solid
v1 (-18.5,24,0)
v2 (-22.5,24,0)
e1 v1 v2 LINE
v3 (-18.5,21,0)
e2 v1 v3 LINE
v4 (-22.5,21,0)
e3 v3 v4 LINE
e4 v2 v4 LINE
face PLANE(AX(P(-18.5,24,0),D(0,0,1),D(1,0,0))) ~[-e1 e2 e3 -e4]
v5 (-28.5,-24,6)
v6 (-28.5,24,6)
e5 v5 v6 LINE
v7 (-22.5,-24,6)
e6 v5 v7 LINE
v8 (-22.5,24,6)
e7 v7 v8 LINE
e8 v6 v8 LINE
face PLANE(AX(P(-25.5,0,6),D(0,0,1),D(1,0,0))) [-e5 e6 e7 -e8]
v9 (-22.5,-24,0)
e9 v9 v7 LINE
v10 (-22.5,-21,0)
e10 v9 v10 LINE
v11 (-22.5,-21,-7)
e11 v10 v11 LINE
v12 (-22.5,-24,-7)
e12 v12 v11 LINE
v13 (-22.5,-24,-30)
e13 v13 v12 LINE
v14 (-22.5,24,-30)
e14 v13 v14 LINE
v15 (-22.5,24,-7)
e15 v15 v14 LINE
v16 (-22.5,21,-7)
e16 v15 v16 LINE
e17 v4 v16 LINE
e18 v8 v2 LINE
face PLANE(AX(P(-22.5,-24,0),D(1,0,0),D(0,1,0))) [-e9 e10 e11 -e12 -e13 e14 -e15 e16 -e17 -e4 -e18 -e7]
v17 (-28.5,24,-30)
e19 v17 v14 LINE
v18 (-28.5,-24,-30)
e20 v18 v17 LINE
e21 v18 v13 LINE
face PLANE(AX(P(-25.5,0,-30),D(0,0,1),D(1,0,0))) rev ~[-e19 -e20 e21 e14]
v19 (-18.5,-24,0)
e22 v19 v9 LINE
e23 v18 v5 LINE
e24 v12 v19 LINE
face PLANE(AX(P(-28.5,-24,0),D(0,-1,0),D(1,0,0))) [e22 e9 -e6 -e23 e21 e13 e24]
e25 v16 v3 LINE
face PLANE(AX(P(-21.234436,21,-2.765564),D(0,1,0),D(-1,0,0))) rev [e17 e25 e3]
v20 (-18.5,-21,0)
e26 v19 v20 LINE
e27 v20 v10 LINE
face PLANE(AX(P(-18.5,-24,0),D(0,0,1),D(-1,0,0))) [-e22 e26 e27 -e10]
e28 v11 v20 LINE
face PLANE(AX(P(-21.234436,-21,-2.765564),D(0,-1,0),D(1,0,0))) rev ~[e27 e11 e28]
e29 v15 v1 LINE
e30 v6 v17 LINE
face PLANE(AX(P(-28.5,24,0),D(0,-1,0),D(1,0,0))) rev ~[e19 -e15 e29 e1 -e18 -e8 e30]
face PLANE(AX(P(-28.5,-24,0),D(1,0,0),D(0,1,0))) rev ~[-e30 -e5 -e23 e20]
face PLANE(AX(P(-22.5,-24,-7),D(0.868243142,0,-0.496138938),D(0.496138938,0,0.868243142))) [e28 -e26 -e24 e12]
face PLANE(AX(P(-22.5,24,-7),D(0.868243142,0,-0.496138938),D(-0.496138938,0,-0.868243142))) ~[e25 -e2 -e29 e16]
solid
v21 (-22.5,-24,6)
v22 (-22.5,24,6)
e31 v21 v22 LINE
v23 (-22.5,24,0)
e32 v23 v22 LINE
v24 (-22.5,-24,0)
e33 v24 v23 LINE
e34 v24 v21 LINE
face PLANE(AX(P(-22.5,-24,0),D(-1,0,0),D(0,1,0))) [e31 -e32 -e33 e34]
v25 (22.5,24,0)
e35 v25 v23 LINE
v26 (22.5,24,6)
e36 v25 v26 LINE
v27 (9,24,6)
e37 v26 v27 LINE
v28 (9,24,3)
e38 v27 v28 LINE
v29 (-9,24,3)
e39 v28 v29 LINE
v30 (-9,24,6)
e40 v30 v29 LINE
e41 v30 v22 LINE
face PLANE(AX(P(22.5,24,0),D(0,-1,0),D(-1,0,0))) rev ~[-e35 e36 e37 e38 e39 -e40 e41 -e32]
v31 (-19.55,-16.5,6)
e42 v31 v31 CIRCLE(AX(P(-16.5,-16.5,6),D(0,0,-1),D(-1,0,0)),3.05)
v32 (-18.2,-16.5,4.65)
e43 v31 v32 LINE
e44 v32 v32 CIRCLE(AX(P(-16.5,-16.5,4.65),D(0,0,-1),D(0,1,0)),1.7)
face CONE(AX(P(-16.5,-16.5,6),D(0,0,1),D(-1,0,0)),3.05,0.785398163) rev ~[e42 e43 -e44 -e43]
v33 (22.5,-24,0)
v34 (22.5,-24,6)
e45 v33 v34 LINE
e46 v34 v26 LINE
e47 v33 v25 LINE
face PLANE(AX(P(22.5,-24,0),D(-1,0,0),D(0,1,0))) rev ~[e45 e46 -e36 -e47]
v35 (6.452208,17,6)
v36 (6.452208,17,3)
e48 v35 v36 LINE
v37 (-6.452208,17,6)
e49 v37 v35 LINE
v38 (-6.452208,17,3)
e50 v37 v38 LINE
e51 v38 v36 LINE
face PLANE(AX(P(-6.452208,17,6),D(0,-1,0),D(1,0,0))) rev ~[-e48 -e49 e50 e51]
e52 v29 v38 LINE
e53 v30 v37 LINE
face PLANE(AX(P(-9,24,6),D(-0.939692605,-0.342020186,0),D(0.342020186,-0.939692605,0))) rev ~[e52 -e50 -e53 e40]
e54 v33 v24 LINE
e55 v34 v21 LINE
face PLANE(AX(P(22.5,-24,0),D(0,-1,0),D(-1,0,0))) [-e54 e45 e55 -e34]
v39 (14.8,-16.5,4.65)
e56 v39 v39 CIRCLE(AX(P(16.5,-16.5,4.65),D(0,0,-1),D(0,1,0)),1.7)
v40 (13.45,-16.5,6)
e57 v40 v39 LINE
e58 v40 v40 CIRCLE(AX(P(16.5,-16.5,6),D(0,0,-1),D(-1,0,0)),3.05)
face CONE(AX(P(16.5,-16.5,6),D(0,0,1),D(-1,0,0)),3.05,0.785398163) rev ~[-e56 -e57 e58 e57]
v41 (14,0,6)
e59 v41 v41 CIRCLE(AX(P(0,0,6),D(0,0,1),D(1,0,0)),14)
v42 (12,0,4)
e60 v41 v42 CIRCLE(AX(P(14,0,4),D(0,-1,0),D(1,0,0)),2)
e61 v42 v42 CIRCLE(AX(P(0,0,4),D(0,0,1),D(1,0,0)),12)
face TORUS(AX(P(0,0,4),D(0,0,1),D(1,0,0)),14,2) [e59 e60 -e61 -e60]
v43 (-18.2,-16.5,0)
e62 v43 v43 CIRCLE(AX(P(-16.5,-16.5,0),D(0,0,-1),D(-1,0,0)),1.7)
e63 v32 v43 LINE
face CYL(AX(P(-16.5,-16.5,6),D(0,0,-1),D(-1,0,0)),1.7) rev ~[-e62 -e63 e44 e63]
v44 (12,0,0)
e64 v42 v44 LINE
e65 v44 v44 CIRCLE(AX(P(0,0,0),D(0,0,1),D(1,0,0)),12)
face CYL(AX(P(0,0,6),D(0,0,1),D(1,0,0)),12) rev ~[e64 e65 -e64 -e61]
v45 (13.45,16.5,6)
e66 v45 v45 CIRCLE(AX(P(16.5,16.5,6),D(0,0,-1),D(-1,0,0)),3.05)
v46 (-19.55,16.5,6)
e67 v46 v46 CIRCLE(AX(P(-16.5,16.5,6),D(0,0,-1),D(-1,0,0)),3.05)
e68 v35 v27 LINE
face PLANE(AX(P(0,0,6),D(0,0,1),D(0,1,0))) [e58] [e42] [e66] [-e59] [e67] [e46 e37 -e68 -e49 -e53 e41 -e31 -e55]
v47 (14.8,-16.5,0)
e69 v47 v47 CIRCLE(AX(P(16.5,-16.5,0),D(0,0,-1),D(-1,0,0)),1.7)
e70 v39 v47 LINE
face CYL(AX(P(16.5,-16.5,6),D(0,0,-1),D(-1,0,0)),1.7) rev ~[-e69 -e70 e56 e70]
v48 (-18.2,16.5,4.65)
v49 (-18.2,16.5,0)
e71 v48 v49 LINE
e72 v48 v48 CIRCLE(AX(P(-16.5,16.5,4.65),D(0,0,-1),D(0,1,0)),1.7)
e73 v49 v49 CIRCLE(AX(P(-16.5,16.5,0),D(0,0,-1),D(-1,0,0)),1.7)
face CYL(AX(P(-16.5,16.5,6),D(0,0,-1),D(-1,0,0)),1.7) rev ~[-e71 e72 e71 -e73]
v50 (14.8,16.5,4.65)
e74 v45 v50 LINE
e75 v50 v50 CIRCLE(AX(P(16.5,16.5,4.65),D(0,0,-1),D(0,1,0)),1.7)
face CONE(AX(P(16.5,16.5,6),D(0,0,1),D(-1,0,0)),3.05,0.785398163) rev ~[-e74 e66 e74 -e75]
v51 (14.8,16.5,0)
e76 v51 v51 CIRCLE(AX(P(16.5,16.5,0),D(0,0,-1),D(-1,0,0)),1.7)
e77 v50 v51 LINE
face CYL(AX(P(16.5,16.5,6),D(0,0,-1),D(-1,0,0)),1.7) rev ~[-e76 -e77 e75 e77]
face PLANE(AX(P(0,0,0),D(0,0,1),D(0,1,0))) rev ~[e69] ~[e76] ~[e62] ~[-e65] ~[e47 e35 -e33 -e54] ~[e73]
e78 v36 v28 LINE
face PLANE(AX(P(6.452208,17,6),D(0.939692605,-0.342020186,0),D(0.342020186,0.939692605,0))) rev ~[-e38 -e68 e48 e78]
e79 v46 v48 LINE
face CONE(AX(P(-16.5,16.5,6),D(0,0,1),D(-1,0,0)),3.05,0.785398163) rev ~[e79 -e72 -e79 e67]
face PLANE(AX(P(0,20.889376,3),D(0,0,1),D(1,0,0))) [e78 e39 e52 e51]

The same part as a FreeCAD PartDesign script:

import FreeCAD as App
import Part
import Sketcher

V = App.Vector
Q = App.Units.Quantity


def edges_at(feature, points):
    """Names of the edges that pass closest to the given points."""
    edges = feature.Shape.Edges
    near = lambda p: min(range(len(edges)), key=lambda i: edges[i].distToShape(Part.Vertex(*p))[0])
    return sorted({f"Edge{near(p) + 1}" for p in points})


def add_polygon(sketch, points):
    """Adds a closed chain of lines whose ends are joined by coincident constraints."""
    first, n = sketch.GeometryCount, len(points)
    for a, b in zip(points, points[1:] + points[:1]):
        sketch.addGeometry(Part.LineSegment(App.Vector(*a, 0), App.Vector(*b, 0)), False)
    for i in range(n):
        sketch.addConstraint(Sketcher.Constraint("Coincident", first + i, 2, first + (i + 1) % n, 1))

doc = App.newDocument("Part")
params = doc.addObject("Spreadsheet::Sheet", "Params")
for row, (alias, value) in enumerate([
    ("sketch1_width", "45 mm"),
    ("sketch1_height", "48 mm"),
    ("pad1_length", "6 mm"),
    ("sketch2_diameter", "3.4 mm"),
    ("hole_diameter", "3.4 mm"),
    ("hole_csink_diameter", "6.1 mm"),
    ("sketch3_diameter", "24 mm"),
    ("fillet_radius", "2 mm"),
    ("sketch4_width", "18 mm"),
    ("pocket2_length", "3 mm"),
    ("sketch5_width", "6 mm"),
    ("sketch5_height", "48 mm"),
    ("pad2_length", "6 mm"),
    ("pad2_length2", "30 mm"),
    ("sketch6_width", "4 mm"),
    ("sketch6_height", "7 mm"),
    ("pad3_length", "3 mm"),
], start=1):
    params.set(f"A{row}", alias)
    params.set(f"B{row}", "=" + value)
    params.setAlias(f"B{row}", alias)

body = doc.addObject("PartDesign::Body", "Body")

sketch1 = body.newObject("Sketcher::SketchObject", "Sketch")
sketch1.AttachmentSupport = (doc.getObject("XY_Plane"), [""])
sketch1.MapMode = "FlatFace"
add_polygon(sketch1, [(-22, -24), (22, -24), (22, 24), (-22, 24)])
sketch1.addConstraint([
    Sketcher.Constraint("Horizontal", 0),
    Sketcher.Constraint("Vertical", 1),
    Sketcher.Constraint("Horizontal", 2),
    Sketcher.Constraint("Vertical", 3),
    Sketcher.Constraint("Symmetric", 0, 2, 2, 2, -1, 1),
    Sketcher.Constraint("DistanceX", 0, 1, 0, 2, 45.0),
    Sketcher.Constraint("DistanceY", 1, 1, 1, 2, 48.0),
])
sketch1.setExpression("Constraints[9]", "Params.sketch1_width")
sketch1.setExpression("Constraints[10]", "Params.sketch1_height")
pad1 = body.newObject("PartDesign::Pad", "Pad")
pad1.Profile = sketch1
pad1.setExpression("Length", "Params.pad1_length")

sketch2 = body.newObject("Sketcher::SketchObject", "Sketch001")
sketch2.AttachmentSupport = (doc.getObject("XY_Plane"), [""])
sketch2.MapMode = "FlatFace"
sketch2.AttachmentOffset = App.Placement(V(0, 0, 6), App.Rotation())
sketch2.addGeometry([
    Part.Circle(V(-16.5, 16.5, 0), V(0, 0, 1), 1.7),
    Part.Circle(V(-16.5, -16.5, 0), V(0, 0, 1), 1.7),
    Part.Circle(V(16.5, -16.5, 0), V(0, 0, 1), 1.7),
    Part.Circle(V(16.5, 16.5, 0), V(0, 0, 1), 1.7),
], False)
sketch2.addConstraint([
    Sketcher.Constraint("Equal", 0, 1),
    Sketcher.Constraint("Equal", 1, 2),
    Sketcher.Constraint("Equal", 2, 3),
    Sketcher.Constraint("Symmetric", 0, 3, 2, 3, -1, 1),
    Sketcher.Constraint("Symmetric", 1, 3, 3, 3, -1, 1),
    Sketcher.Constraint("Symmetric", 1, 3, 2, 3, -2),
    Sketcher.Constraint("Diameter", 0, 3.4),
    Sketcher.Constraint("DistanceY", 1, 3, 0, 3, 33.0),
    Sketcher.Constraint("DistanceX", 1, 3, 2, 3, 33.0),
])
sketch2.setExpression("Constraints[6]", "Params.sketch2_diameter")
doc.recompute()
hole = body.newObject("PartDesign::Hole", "Hole")
hole.Profile = sketch2
hole.ThreadType = "None"
hole.setExpression("Diameter", "Params.hole_diameter")
hole.DepthType = "ThroughAll"
hole.HoleCutType = "Countersink"
hole.setExpression("HoleCutDiameter", "Params.hole_csink_diameter")
hole.HoleCutCountersinkAngle = 90

sketch3 = body.newObject("Sketcher::SketchObject", "Sketch002")
sketch3.AttachmentSupport = (doc.getObject("XY_Plane"), [""])
sketch3.MapMode = "FlatFace"
sketch3.AttachmentOffset = App.Placement(V(0, 0, 6), App.Rotation())
sketch3.addGeometry(Part.Circle(V(0, 0, 0), V(0, 0, 1), 12), False)
sketch3.addConstraint([
    Sketcher.Constraint("Coincident", 0, 3, -1, 1),
    Sketcher.Constraint("Diameter", 0, 24.0),
])
sketch3.setExpression("Constraints[1]", "Params.sketch3_diameter")
pocket1 = body.newObject("PartDesign::Pocket", "Pocket")
pocket1.Profile = sketch3
pocket1.Type = "ThroughAll"
doc.recompute()

fillet = body.newObject("PartDesign::Fillet", "Fillet")
fillet.Base = (pocket1, edges_at(pocket1, [(-12, 0, 6)]))
fillet.setExpression("Radius", "Params.fillet_radius")

sketch4 = body.newObject("Sketcher::SketchObject", "Sketch003")
sketch4.AttachmentSupport = (doc.getObject("XY_Plane"), [""])
sketch4.MapMode = "FlatFace"
sketch4.AttachmentOffset = App.Placement(V(0, 0, 6), App.Rotation())
add_polygon(sketch4, [(-9, 24), (-6, 17), (6, 17), (9, 24)])
sketch4.addConstraint([
    Sketcher.Constraint("Horizontal", 1),
    Sketcher.Constraint("Horizontal", 3),
    Sketcher.Constraint("Equal", 0, 2),
    Sketcher.Constraint("DistanceX", 3, 2, 3, 1, 18.0),
    Sketcher.Constraint("Angle", 0, Q("-69.999997 deg")),
    Sketcher.Constraint("DistanceY", -1, 1, 0, 2, 17.0),
    Sketcher.Constraint("DistanceX", -1, 1, 2, 2, 9.0),
    Sketcher.Constraint("DistanceY", -1, 1, 2, 2, 24.0),
])
sketch4.setExpression("Constraints[7]", "Params.sketch4_width")
pocket2 = body.newObject("PartDesign::Pocket", "Pocket001")
pocket2.Profile = sketch4
pocket2.setExpression("Length", "Params.pocket2_length")
body2 = doc.addObject("PartDesign::Body", "Body001")

sketch5 = body2.newObject("Sketcher::SketchObject", "Sketch004")
sketch5.AttachmentSupport = (doc.getObject("XY_Plane001"), [""])
sketch5.MapMode = "FlatFace"
add_polygon(sketch5, [(-28, 24), (-28, -24), (-22, -24), (-22, 24)])
sketch5.addConstraint([
    Sketcher.Constraint("Vertical", 0),
    Sketcher.Constraint("Horizontal", 1),
    Sketcher.Constraint("Vertical", 2),
    Sketcher.Constraint("Horizontal", 3),
    Sketcher.Constraint("DistanceX", 1, 1, 1, 2, 6.0),
    Sketcher.Constraint("DistanceY", 0, 2, 0, 1, 48.0),
    Sketcher.Constraint("DistanceY", 0, 2, -1, 1, 24.0),
    Sketcher.Constraint("DistanceX", 0, 2, -1, 1, 28.5),
])
sketch5.setExpression("Constraints[8]", "Params.sketch5_width")
sketch5.setExpression("Constraints[9]", "Params.sketch5_height")
pad2 = body2.newObject("PartDesign::Pad", "Pad001")
pad2.Profile = sketch5
pad2.Type = "TwoLengths"
pad2.setExpression("Length", "Params.pad2_length")
pad2.setExpression("Length2", "Params.pad2_length2")

sketch6 = body2.newObject("Sketcher::SketchObject", "Sketch005")
sketch6.AttachmentSupport = (doc.getObject("XZ_Plane001"), [""])
sketch6.MapMode = "FlatFace"
sketch6.AttachmentOffset = App.Placement(V(0, 0, 24), App.Rotation())
add_polygon(sketch6, [(-22.5, 0), (-22.5, -7), (-18.5, 0)])
sketch6.addConstraint([
    Sketcher.Constraint("Vertical", 0),
    Sketcher.Constraint("Horizontal", 2),
    Sketcher.Constraint("PointOnObject", 1, 2, -1),
    Sketcher.Constraint("DistanceX", 2, 2, 2, 1, 4.0),
    Sketcher.Constraint("DistanceY", 0, 2, 0, 1, 7.0),
    Sketcher.Constraint("DistanceX", 0, 2, -1, 1, 22.5),
])
sketch6.setExpression("Constraints[6]", "Params.sketch6_width")
sketch6.setExpression("Constraints[7]", "Params.sketch6_height")
pad3 = body2.newObject("PartDesign::Pad", "Pad002")
pad3.Profile = sketch6
pad3.setExpression("Length", "Params.pad3_length")
pad3.Reversed = True
doc.recompute()

mirrored = body2.newObject("PartDesign::Mirrored", "Mirrored")
mirrored.Originals = [pad3]
mirrored.MirrorPlane = (doc.getObject("XZ_Plane001"), [""])
body2.Tip = mirrored

doc.recompute()
